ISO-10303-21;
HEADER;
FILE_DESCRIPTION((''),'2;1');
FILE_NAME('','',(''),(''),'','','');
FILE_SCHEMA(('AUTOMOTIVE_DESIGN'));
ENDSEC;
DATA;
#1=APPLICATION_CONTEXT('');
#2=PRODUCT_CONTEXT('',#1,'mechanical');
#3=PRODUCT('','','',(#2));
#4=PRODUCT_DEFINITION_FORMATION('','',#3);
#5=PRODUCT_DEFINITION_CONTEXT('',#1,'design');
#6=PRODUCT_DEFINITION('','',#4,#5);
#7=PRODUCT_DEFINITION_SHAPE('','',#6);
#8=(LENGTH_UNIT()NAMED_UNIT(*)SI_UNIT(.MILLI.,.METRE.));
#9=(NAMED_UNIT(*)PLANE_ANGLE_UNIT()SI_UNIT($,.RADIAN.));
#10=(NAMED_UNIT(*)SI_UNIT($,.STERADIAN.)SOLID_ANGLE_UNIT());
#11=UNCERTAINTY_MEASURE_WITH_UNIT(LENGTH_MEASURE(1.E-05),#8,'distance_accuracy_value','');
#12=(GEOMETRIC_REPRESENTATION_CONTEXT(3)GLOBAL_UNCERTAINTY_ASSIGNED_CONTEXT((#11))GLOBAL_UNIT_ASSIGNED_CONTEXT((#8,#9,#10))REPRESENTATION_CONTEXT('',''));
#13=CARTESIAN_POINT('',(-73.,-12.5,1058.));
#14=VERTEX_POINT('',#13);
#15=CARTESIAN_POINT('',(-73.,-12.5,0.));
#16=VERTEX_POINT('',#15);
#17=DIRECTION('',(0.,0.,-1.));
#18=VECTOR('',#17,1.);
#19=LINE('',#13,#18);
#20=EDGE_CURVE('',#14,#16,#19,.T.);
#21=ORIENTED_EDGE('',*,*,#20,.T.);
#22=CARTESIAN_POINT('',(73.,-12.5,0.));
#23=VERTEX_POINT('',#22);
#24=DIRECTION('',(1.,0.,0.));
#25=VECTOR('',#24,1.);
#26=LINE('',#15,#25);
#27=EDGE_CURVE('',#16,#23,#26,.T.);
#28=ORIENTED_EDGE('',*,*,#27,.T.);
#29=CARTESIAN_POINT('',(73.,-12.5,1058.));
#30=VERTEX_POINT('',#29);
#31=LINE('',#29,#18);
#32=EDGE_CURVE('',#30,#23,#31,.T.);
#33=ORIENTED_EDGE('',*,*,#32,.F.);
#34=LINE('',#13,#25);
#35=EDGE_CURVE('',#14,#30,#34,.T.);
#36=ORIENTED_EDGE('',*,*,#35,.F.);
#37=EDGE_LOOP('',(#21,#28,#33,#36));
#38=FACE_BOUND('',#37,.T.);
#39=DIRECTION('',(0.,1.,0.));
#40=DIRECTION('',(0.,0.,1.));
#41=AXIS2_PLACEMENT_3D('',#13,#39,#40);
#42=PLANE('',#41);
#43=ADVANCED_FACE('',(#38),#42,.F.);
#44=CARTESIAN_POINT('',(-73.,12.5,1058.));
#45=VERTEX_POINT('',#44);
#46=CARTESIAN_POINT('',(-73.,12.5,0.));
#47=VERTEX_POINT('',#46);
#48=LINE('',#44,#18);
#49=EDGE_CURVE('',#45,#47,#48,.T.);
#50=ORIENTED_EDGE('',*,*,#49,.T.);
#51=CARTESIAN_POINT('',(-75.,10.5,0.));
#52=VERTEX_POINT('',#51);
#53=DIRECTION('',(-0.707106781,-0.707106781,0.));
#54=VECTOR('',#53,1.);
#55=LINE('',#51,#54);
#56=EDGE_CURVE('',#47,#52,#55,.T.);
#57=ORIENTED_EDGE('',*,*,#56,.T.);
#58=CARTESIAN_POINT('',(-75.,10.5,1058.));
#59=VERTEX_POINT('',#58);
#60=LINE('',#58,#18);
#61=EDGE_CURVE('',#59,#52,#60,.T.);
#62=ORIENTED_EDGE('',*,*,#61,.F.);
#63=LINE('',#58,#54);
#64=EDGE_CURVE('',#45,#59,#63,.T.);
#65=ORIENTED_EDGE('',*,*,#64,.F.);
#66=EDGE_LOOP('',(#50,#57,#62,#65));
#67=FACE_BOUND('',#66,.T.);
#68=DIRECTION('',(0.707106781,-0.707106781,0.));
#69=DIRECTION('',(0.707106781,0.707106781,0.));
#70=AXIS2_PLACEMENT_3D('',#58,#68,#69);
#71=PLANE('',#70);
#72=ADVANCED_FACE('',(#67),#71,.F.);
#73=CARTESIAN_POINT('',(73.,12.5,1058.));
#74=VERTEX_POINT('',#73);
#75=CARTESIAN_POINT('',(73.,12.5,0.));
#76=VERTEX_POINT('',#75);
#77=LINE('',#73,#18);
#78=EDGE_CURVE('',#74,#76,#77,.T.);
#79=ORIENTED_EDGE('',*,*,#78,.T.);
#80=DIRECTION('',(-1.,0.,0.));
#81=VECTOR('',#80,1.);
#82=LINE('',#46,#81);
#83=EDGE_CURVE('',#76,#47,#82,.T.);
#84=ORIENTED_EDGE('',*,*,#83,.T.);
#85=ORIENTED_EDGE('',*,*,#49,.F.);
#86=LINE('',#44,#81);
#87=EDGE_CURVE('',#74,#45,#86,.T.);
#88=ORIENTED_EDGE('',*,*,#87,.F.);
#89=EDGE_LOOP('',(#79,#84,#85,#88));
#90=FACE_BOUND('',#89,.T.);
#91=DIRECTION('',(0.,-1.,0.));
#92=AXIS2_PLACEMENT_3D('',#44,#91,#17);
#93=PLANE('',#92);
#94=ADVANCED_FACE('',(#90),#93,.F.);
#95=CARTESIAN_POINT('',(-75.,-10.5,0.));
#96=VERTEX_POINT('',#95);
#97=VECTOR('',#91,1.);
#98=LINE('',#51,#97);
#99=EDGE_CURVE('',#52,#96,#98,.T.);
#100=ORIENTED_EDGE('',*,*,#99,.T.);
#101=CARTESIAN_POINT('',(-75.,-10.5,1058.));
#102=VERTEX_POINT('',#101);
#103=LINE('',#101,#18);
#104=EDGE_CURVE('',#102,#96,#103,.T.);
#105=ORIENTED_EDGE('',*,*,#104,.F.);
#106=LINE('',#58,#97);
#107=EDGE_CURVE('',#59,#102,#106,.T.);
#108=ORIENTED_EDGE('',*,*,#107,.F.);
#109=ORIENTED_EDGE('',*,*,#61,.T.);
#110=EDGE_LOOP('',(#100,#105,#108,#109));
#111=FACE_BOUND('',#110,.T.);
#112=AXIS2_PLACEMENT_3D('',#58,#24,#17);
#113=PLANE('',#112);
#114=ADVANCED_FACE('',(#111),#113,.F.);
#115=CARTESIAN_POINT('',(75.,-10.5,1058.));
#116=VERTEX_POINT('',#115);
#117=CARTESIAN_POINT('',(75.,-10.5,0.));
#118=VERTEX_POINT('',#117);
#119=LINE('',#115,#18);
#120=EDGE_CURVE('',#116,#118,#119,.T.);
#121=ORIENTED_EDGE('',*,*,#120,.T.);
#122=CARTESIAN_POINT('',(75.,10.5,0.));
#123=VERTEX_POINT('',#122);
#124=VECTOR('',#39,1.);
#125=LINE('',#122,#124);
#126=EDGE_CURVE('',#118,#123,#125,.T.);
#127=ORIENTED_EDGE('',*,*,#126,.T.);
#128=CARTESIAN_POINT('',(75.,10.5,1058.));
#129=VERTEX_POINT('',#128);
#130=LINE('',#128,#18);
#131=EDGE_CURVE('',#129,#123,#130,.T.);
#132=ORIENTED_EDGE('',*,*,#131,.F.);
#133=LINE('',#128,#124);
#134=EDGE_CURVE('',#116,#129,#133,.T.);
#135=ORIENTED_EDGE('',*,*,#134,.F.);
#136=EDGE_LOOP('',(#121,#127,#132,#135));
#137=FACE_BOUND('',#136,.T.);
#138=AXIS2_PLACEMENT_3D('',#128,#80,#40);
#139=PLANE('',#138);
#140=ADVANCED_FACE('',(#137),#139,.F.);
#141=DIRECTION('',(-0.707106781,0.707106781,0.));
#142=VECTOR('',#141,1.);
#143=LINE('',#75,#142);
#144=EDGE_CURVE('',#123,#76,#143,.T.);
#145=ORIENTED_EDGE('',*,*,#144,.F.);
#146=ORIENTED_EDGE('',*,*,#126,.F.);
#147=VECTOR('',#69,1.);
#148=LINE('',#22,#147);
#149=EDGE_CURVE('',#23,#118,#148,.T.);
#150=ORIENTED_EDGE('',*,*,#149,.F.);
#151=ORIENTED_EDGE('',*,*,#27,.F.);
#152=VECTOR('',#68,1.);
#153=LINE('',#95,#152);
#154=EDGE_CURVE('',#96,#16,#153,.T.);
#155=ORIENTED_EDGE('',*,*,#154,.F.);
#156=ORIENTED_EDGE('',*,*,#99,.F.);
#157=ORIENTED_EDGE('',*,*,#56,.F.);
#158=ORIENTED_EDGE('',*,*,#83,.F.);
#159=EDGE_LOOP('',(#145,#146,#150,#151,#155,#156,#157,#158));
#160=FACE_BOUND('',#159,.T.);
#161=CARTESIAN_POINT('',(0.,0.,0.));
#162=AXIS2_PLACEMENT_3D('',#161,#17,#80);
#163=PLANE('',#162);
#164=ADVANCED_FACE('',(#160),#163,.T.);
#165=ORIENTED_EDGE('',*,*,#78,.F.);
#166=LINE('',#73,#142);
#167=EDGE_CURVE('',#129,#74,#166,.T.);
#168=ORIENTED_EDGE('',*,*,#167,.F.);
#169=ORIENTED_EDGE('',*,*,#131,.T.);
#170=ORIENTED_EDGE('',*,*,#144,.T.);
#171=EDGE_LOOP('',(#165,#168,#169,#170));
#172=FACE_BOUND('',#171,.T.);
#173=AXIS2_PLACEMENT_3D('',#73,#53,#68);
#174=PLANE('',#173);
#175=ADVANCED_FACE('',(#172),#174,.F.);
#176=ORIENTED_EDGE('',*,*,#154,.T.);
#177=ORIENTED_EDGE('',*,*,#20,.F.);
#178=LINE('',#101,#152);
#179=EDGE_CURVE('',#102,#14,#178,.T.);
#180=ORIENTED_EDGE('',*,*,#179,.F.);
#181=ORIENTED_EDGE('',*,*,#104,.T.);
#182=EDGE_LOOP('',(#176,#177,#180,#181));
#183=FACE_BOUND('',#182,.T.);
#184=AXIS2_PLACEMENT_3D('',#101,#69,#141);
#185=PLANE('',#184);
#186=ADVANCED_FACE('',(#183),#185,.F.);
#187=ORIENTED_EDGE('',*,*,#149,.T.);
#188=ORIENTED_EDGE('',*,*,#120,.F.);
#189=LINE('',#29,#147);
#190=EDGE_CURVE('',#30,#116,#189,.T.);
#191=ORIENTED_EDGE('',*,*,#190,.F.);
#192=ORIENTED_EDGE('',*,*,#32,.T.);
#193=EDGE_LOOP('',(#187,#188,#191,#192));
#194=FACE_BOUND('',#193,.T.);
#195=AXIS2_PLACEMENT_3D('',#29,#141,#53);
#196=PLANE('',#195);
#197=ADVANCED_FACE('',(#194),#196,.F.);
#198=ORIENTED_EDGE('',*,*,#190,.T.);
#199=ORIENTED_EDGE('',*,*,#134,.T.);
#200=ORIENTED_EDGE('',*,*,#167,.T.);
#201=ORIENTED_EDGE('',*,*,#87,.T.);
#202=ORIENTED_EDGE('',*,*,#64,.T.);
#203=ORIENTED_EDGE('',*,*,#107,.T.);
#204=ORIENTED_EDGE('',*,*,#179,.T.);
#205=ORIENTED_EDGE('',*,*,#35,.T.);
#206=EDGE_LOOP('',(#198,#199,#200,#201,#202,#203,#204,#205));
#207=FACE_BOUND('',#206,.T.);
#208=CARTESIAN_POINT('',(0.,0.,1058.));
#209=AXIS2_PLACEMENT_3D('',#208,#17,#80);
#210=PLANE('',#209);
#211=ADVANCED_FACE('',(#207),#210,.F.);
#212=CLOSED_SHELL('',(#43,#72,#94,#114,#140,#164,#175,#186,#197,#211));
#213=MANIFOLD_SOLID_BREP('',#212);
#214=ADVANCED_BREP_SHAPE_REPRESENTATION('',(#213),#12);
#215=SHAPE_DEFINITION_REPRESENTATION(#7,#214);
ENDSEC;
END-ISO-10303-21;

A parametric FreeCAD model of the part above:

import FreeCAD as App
import Part
import Sketcher

V = App.Vector
Q = App.Units.Quantity


def add_polygon(sketch, points):
    """Adds a closed chain of lines whose ends are joined by coincident constraints."""
    first, n = sketch.GeometryCount, len(points)
    for a, b in zip(points, points[1:] + points[:1]):
        sketch.addGeometry(Part.LineSegment(App.Vector(*a, 0), App.Vector(*b, 0)), False)
    for i in range(n):
        sketch.addConstraint(Sketcher.Constraint("Coincident", first + i, 2, first + (i + 1) % n, 1))

doc = App.newDocument("Part")
body = doc.addObject("PartDesign::Body", "Body")

# Sketch on XY plane
sketch1 = doc.addObject("Sketcher::SketchObject", "Sketch")
body.addObject(sketch1)
sketch1.AttachmentSupport = (doc.XY_Plane, [""])
sketch1.MapMode = "FlatFace"
add_polygon(sketch1, [(-73, 12.5), (-75, 10.5), (-75, -10.5), (-73, -12.5), (73, -12.5), (75, -10.5), (75, 10.5), (73, 12.5)])  # lines 0-7
sketch1.addConstraint([
    Sketcher.Constraint("Vertical", 1),
    Sketcher.Constraint("Horizontal", 3),
    Sketcher.Constraint("Vertical", 5),
    Sketcher.Constraint("Horizontal", 7),
    Sketcher.Constraint("Symmetric", 0, 2, 4, 2, -1, 1),
    Sketcher.Constraint("Symmetric", 2, 2, 6, 2, -1, 1),
    Sketcher.Constraint("Perpendicular", 0, 2),
    Sketcher.Constraint("Perpendicular", 2, 4),
    Sketcher.Constraint("Perpendicular", 4, 6),
    Sketcher.Constraint("Horizontal", 1, 2, 4, 2),
    Sketcher.Constraint("Vertical", 3, 2, 6, 2),
    Sketcher.Constraint("DistanceX", 3, 1, 3, 2, Q("146 mm")),
    Sketcher.Constraint("DistanceY", 1, 2, 1, 1, Q("21 mm")),
    Sketcher.Constraint("DistanceX", 0, 2, -1, 1, Q("75 mm")),
])
pad1 = doc.addObject("PartDesign::Pad", "Pad")
body.addObject(pad1)
pad1.Profile = sketch1
pad1.Length = 1058

doc.recompute()
